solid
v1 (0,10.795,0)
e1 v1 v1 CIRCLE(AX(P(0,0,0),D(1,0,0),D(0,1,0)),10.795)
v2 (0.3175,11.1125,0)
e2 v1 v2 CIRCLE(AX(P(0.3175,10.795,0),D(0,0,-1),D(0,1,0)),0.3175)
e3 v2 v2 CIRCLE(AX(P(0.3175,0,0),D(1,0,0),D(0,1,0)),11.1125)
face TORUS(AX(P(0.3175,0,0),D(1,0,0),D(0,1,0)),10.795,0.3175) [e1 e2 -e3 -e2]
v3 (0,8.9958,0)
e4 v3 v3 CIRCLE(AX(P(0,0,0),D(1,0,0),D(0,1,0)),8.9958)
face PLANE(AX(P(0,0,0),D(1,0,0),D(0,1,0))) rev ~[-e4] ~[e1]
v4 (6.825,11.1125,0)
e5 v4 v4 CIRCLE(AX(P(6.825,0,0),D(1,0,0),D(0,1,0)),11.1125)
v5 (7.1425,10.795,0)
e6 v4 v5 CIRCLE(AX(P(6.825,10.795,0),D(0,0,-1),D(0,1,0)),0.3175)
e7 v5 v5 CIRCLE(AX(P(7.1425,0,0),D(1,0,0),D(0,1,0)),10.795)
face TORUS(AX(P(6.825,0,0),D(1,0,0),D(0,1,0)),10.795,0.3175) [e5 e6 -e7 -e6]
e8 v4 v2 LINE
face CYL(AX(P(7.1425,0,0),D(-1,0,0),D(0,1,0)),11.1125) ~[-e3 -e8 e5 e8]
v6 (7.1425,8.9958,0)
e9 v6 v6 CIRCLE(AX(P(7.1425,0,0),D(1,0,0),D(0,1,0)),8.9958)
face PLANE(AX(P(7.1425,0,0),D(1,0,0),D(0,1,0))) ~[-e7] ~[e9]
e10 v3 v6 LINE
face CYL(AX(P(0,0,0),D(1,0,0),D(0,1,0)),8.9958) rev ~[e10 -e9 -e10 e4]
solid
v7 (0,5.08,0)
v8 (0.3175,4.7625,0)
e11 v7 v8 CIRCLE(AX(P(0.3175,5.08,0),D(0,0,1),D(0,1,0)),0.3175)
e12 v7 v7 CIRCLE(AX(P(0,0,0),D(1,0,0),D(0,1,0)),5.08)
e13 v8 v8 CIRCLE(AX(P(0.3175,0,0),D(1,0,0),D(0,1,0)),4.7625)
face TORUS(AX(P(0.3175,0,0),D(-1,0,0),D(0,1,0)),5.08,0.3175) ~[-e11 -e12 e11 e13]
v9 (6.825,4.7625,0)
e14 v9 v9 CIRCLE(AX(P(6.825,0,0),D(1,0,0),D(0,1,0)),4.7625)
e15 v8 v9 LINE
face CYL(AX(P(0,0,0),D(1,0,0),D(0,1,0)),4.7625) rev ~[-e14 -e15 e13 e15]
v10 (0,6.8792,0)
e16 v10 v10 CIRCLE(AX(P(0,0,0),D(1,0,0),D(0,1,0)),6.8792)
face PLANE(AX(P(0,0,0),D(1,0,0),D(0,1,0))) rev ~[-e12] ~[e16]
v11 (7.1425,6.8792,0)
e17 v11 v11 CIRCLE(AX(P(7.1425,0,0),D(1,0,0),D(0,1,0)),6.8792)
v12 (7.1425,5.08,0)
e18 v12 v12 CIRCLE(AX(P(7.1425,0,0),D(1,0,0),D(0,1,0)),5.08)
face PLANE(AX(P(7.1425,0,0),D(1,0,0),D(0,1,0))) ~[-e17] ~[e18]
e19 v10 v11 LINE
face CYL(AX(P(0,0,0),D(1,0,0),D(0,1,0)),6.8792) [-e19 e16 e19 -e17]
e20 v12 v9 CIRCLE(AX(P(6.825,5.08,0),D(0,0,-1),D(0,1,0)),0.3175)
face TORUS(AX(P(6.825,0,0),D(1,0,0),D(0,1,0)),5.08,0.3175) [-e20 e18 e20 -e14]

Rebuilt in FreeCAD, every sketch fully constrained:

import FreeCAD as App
import Part
import Sketcher
from FreeCAD import Vector


def edges_at(feature, points):
    """Names of the edges that pass closest to the given points."""
    edges = feature.Shape.Edges
    near = lambda p: min(range(len(edges)), key=lambda i: edges[i].distToShape(Part.Vertex(*p))[0])
    return sorted({f"Edge{near(p) + 1}" for p in points})

doc = App.newDocument("Part")
params = doc.addObject("Spreadsheet::Sheet", "Params")
for row, (alias, value) in enumerate([
    ("revolution_angle", "360 deg"),
    ("fillet_radius", "0.3175 mm"),
], start=1):
    params.set(f"A{row}", alias)
    params.set(f"B{row}", "=" + value)
    params.setAlias(f"B{row}", alias)

body = doc.addObject("PartDesign::Body", "Body")
body.AllowCompound = True

# Sketch on XY plane
sketch1 = body.newObject("Sketcher::SketchObject", "Sketch")
sketch1.AttachmentSupport = (doc.getObject("XY_Plane"), [""])
sketch1.MapMode = "FlatFace"
sketch1.addGeometry([
    Part.LineSegment(Vector(0, 6.9, 0), Vector(0, 4.8, 0)),  # 0
    Part.LineSegment(Vector(0, 4.8, 0), Vector(7.1, 4.8, 0)),  # 1
    Part.LineSegment(Vector(7.1, 4.8, 0), Vector(7.1, 6.9, 0)),  # 2
    Part.LineSegment(Vector(7.1, 6.9, 0), Vector(0, 6.9, 0)),  # 3
    Part.LineSegment(Vector(0, 11.1, 0), Vector(0, 9, 0)),  # 4
    Part.LineSegment(Vector(0, 9, 0), Vector(7.1, 9, 0)),  # 5
    Part.LineSegment(Vector(7.1, 9, 0), Vector(7.1, 11.1, 0)),  # 6
    Part.LineSegment(Vector(7.1, 11.1, 0), Vector(0, 11.1, 0)),  # 7
], False)
sketch1.addConstraint([
    Sketcher.Constraint("Coincident", 0, 2, 1, 1),
    Sketcher.Constraint("Coincident", 1, 2, 2, 1),
    Sketcher.Constraint("Coincident", 2, 2, 3, 1),
    Sketcher.Constraint("Coincident", 3, 2, 0, 1),
    Sketcher.Constraint("Coincident", 4, 2, 5, 1),
    Sketcher.Constraint("Coincident", 5, 2, 6, 1),
    Sketcher.Constraint("Coincident", 6, 2, 7, 1),
    Sketcher.Constraint("Coincident", 7, 2, 4, 1),
    Sketcher.Constraint("Vertical", 0),
    Sketcher.Constraint("Horizontal", 1),
    Sketcher.Constraint("Vertical", 2),
    Sketcher.Constraint("Horizontal", 3),
    Sketcher.Constraint("Vertical", 4),
    Sketcher.Constraint("Horizontal", 5),
    Sketcher.Constraint("Vertical", 6),
    Sketcher.Constraint("Horizontal", 7),
    Sketcher.Constraint("PointOnObject", 0, 2, -2),
    Sketcher.Constraint("PointOnObject", 4, 2, -2),
    Sketcher.Constraint("Vertical", 2, 2, 5, 2),
    Sketcher.Constraint("Equal", 2, 4),
    Sketcher.Constraint("DistanceX", 1, 1, 1, 2, 7.1425),
    Sketcher.Constraint("DistanceY", 1, 2, 6, 2, 6.35),
    Sketcher.Constraint("DistanceY", 0, 2, 0, 1, 2.1167),
    Sketcher.Constraint("DistanceY", -1, 1, 0, 2, 4.7625),
])
revolution = body.newObject("PartDesign::Revolution", "Revolution")
revolution.Profile = sketch1
revolution.ReferenceAxis = (sketch1, ["H_Axis"])
revolution.setExpression("Angle", "Params.revolution_angle")
doc.recompute()

fillet = body.newObject("PartDesign::Fillet", "Fillet")
fillet.Base = (revolution, edges_at(revolution, [
    (0, -11.113, 0),
    (7.143, -11.113, 0),
    (0, -4.763, 0),
    (7.143, -4.763, 0),
]))
fillet.setExpression("Radius", "Params.fillet_radius")

doc.recompute()
